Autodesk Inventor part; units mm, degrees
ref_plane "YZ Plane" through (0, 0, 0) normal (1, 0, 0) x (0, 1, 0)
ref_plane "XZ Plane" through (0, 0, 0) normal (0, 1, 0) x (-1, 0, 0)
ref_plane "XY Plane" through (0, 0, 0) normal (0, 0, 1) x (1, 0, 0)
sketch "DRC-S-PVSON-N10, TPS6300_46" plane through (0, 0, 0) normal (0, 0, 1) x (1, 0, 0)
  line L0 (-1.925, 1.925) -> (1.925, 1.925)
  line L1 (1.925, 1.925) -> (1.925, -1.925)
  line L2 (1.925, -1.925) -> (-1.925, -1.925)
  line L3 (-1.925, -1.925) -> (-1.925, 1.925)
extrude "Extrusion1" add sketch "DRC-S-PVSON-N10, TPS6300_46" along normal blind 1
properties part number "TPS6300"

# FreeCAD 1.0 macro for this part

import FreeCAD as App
import Part
import Sketcher
Q = App.Units.Quantity


def add_polygon(sketch, points):
    """Adds a closed chain of lines whose ends are joined by coincident constraints."""
    first, n = sketch.GeometryCount, len(points)
    for a, b in zip(points, points[1:] + points[:1]):
        sketch.addGeometry(Part.LineSegment(App.Vector(*a, 0), App.Vector(*b, 0)), False)
    for i in range(n):
        sketch.addConstraint(Sketcher.Constraint("Coincident", first + i, 2, first + (i + 1) % n, 1))

doc = App.newDocument("Part")
body = doc.addObject("PartDesign::Body", "Body")

sketch1 = body.newObject("Sketcher::SketchObject", "Sketch")
sketch1.AttachmentSupport = (doc.getObject("XY_Plane"), [""])
sketch1.MapMode = "FlatFace"
add_polygon(sketch1, [(1.9, 1.9), (-1.9, 1.9), (-1.9, -1.9), (1.9, -1.9)])
sketch1.addConstraint(Sketcher.Constraint("Horizontal", 0))
sketch1.addConstraint(Sketcher.Constraint("Vertical", 1))
sketch1.addConstraint(Sketcher.Constraint("Horizontal", 2))
sketch1.addConstraint(Sketcher.Constraint("Vertical", 3))
sketch1.addConstraint(Sketcher.Constraint("Symmetric", 0, 2, 2, 2, -1, 1))
sketch1.addConstraint(Sketcher.Constraint("Equal", 2, 1))
sketch1.addConstraint(Sketcher.Constraint("DistanceX", 0, 2, 0, 1, Q("3.85 mm")))
pad1 = body.newObject("PartDesign::Pad", "Pad")
pad1.Profile = sketch1
pad1.Length = 1

doc.recompute()
